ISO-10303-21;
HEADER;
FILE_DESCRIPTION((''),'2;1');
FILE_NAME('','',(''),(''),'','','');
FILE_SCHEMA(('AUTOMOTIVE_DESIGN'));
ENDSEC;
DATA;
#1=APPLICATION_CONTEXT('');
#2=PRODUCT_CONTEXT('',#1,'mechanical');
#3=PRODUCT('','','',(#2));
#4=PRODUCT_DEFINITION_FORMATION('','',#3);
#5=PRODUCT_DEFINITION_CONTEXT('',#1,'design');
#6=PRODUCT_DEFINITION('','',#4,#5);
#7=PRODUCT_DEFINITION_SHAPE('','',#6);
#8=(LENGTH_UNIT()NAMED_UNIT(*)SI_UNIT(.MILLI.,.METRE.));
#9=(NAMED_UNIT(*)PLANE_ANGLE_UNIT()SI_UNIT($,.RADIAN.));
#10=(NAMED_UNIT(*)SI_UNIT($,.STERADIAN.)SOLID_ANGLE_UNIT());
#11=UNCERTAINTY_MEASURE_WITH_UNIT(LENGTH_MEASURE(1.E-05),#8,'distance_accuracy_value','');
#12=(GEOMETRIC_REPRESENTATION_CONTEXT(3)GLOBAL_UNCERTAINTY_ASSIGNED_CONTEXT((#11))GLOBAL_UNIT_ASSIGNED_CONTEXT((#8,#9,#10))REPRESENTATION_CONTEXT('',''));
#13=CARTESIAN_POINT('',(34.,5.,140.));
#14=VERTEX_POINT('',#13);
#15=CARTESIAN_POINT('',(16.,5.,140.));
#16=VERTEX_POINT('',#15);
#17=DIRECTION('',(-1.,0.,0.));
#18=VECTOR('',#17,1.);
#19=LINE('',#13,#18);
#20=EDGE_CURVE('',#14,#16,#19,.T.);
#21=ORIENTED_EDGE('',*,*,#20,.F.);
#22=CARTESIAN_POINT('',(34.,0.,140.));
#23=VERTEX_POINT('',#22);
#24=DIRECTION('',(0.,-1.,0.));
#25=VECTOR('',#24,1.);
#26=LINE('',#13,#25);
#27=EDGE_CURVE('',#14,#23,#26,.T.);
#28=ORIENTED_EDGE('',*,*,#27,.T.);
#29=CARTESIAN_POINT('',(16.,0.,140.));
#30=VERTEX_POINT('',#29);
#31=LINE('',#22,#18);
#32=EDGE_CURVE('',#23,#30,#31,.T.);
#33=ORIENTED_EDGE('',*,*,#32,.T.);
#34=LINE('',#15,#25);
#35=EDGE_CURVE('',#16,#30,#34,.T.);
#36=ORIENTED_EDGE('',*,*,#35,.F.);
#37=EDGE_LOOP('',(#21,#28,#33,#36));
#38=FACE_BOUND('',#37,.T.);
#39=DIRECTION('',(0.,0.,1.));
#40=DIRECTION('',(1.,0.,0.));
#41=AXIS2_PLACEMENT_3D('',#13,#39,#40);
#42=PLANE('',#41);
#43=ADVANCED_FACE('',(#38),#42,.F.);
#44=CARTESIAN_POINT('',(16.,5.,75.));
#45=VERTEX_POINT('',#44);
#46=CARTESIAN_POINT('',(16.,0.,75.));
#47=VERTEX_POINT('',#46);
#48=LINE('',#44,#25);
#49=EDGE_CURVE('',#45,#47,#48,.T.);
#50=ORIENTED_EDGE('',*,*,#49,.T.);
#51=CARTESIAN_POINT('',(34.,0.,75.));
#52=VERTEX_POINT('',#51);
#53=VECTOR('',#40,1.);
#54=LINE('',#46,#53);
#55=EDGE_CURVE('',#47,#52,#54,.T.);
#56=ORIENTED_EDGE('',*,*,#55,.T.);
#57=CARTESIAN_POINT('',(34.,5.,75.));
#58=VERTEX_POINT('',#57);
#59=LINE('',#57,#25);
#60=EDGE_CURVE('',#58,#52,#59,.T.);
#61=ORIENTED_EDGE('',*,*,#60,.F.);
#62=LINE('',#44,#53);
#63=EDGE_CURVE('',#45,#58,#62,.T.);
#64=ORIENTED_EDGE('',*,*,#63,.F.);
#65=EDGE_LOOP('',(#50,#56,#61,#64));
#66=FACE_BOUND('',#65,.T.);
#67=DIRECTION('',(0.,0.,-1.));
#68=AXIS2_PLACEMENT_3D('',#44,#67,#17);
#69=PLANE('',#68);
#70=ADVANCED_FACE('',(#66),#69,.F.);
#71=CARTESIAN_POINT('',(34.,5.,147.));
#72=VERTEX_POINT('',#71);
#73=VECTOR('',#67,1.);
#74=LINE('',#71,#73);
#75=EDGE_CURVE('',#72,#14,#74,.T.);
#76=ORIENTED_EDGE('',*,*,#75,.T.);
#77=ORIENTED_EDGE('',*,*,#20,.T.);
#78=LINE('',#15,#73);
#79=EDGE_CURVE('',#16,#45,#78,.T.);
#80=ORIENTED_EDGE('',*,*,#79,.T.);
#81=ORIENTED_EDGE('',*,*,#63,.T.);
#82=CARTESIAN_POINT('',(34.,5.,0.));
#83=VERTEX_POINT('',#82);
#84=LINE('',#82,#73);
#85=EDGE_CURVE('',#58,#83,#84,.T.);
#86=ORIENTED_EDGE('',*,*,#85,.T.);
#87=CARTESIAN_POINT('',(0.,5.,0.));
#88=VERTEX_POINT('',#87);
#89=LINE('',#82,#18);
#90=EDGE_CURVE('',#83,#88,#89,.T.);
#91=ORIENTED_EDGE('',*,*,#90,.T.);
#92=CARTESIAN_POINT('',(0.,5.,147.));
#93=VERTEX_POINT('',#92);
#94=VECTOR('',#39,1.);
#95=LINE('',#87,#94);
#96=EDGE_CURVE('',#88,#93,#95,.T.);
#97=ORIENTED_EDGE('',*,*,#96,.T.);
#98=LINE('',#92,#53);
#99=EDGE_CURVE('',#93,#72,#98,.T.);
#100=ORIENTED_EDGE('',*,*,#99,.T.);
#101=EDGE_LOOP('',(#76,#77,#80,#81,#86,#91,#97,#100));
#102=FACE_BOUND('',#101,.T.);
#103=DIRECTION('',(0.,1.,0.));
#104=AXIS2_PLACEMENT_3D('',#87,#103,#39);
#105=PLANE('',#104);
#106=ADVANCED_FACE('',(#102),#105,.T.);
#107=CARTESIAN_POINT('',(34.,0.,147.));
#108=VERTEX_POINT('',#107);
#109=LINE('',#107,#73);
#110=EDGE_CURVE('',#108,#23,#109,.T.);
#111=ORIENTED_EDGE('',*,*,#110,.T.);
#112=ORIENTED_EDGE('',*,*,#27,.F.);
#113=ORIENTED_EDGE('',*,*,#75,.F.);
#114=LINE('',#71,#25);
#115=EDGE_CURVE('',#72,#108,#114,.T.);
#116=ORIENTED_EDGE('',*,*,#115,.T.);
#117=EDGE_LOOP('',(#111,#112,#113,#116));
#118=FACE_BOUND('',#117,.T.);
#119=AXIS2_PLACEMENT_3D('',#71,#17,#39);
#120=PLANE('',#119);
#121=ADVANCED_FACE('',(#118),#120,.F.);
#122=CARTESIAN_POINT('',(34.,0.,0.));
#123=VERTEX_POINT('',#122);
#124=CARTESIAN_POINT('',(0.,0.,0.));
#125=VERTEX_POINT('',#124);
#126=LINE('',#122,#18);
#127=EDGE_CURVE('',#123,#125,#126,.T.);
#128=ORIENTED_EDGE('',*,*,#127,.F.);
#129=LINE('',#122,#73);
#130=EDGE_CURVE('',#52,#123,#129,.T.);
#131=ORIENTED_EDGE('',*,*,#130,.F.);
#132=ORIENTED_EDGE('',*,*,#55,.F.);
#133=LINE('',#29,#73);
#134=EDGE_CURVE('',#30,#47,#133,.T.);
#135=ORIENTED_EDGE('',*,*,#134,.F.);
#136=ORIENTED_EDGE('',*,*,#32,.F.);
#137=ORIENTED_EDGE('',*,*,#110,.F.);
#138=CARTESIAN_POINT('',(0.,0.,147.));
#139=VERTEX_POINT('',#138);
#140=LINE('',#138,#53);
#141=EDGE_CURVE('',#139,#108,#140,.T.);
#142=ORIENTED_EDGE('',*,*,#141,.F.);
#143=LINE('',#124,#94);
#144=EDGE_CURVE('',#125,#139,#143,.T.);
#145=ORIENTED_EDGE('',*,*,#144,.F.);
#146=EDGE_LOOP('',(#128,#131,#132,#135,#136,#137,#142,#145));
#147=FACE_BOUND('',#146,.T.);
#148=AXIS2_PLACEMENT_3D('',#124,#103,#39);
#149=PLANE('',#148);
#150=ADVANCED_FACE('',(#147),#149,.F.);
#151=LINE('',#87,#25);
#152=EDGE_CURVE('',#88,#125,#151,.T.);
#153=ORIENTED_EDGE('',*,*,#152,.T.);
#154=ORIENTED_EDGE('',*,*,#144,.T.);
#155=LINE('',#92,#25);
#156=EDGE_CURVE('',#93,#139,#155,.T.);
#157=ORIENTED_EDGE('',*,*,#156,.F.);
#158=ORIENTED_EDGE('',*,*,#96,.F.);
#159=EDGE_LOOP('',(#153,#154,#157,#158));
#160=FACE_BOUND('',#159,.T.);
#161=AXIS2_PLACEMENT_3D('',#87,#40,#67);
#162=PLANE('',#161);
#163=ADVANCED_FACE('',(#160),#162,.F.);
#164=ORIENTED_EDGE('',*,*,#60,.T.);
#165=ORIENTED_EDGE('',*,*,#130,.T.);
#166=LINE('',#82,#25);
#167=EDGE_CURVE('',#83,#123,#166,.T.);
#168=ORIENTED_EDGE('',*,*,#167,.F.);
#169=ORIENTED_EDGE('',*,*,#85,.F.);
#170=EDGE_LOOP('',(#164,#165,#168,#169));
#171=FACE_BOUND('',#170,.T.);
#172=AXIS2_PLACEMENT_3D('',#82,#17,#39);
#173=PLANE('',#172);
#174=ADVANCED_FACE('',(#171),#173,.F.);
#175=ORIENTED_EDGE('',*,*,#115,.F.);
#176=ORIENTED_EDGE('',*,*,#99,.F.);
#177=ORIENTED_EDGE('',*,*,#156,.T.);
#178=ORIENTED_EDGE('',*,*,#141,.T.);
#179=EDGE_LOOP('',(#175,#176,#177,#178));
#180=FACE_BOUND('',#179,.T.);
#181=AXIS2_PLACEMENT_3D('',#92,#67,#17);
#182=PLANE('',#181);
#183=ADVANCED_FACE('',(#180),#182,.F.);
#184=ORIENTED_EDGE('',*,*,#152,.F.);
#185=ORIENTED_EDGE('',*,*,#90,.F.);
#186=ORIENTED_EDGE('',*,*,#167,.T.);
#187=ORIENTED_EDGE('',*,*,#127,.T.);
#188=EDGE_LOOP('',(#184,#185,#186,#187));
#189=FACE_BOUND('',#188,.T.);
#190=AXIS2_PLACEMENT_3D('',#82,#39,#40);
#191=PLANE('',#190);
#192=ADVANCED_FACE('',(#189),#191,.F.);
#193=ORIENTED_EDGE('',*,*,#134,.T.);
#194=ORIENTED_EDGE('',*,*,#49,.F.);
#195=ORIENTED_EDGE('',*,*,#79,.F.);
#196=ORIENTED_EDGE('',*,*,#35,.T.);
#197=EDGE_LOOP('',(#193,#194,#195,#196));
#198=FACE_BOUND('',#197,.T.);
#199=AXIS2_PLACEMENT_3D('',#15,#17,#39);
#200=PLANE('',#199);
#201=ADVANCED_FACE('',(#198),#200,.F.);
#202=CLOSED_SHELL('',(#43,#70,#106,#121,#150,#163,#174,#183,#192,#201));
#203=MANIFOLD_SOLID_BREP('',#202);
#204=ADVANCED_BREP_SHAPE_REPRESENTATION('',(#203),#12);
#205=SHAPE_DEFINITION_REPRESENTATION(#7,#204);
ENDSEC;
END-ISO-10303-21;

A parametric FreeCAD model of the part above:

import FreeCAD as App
import Part
import Sketcher

V = App.Vector


def add_polygon(sketch, points):
    """Adds a closed chain of lines whose ends are joined by coincident constraints."""
    first, n = sketch.GeometryCount, len(points)
    for a, b in zip(points, points[1:] + points[:1]):
        sketch.addGeometry(Part.LineSegment(App.Vector(*a, 0), App.Vector(*b, 0)), False)
    for i in range(n):
        sketch.addConstraint(Sketcher.Constraint("Coincident", first + i, 2, first + (i + 1) % n, 1))

doc = App.newDocument("Part")
params = doc.addObject("Spreadsheet::Sheet", "Params")
for row, (alias, value) in enumerate([
    ("sketch1_width", "34 mm"),
    ("sketch1_width2", "18 mm"),
    ("sketch1_height", "147 mm"),
    ("sketch1_height2", "7 mm"),
    ("sketch1_height3", "65 mm"),
    ("pad1_length", "5 mm"),
], start=1):
    params.set(f"A{row}", alias)
    params.set(f"B{row}", "=" + value)
    params.setAlias(f"B{row}", alias)

body = doc.addObject("PartDesign::Body", "Body")

# Sketch on XZ plane
sketch1 = doc.addObject("Sketcher::SketchObject", "Sketch")
body.addObject(sketch1)
sketch1.AttachmentSupport = (doc.XZ_Plane, [""])
sketch1.MapMode = "FlatFace"
add_polygon(sketch1, [(0, 0), (0, 147), (34, 147), (34, 140), (16, 140), (16, 75), (34, 75), (34, 0)])  # lines 0-7
sketch1.addConstraint(Sketcher.Constraint("Vertical", 0))
sketch1.addConstraint(Sketcher.Constraint("Horizontal", 1))
sketch1.addConstraint(Sketcher.Constraint("Vertical", 2))
sketch1.addConstraint(Sketcher.Constraint("Horizontal", 3))
sketch1.addConstraint(Sketcher.Constraint("Vertical", 4))
sketch1.addConstraint(Sketcher.Constraint("Horizontal", 5))
sketch1.addConstraint(Sketcher.Constraint("Vertical", 6))
sketch1.addConstraint(Sketcher.Constraint("Horizontal", 7))
sketch1.addConstraint(Sketcher.Constraint("Coincident", 7, 2, -1, 1))
sketch1.addConstraint(Sketcher.Constraint("Vertical", 2, 2, 5, 2))
sketch1.addConstraint(Sketcher.Constraint("DistanceX", 1, 1, 1, 2, 34.0))
sketch1.addConstraint(Sketcher.Constraint("DistanceX", 3, 2, 3, 1, 18.0))
sketch1.addConstraint(Sketcher.Constraint("DistanceY", 0, 1, 0, 2, 147.0))
sketch1.addConstraint(Sketcher.Constraint("DistanceY", 2, 2, 2, 1, 7.0))
sketch1.addConstraint(Sketcher.Constraint("DistanceY", 4, 2, 4, 1, 65.0))
sketch1.setExpression("Constraints[18]", "Params.sketch1_width")
sketch1.setExpression("Constraints[19]", "Params.sketch1_width2")
sketch1.setExpression("Constraints[20]", "Params.sketch1_height")
sketch1.setExpression("Constraints[21]", "Params.sketch1_height2")
sketch1.setExpression("Constraints[22]", "Params.sketch1_height3")
pad1 = doc.addObject("PartDesign::Pad", "Pad")
body.addObject(pad1)
pad1.Profile = sketch1
pad1.setExpression("Length", "Params.pad1_length")
pad1.Reversed = True

doc.recompute()
